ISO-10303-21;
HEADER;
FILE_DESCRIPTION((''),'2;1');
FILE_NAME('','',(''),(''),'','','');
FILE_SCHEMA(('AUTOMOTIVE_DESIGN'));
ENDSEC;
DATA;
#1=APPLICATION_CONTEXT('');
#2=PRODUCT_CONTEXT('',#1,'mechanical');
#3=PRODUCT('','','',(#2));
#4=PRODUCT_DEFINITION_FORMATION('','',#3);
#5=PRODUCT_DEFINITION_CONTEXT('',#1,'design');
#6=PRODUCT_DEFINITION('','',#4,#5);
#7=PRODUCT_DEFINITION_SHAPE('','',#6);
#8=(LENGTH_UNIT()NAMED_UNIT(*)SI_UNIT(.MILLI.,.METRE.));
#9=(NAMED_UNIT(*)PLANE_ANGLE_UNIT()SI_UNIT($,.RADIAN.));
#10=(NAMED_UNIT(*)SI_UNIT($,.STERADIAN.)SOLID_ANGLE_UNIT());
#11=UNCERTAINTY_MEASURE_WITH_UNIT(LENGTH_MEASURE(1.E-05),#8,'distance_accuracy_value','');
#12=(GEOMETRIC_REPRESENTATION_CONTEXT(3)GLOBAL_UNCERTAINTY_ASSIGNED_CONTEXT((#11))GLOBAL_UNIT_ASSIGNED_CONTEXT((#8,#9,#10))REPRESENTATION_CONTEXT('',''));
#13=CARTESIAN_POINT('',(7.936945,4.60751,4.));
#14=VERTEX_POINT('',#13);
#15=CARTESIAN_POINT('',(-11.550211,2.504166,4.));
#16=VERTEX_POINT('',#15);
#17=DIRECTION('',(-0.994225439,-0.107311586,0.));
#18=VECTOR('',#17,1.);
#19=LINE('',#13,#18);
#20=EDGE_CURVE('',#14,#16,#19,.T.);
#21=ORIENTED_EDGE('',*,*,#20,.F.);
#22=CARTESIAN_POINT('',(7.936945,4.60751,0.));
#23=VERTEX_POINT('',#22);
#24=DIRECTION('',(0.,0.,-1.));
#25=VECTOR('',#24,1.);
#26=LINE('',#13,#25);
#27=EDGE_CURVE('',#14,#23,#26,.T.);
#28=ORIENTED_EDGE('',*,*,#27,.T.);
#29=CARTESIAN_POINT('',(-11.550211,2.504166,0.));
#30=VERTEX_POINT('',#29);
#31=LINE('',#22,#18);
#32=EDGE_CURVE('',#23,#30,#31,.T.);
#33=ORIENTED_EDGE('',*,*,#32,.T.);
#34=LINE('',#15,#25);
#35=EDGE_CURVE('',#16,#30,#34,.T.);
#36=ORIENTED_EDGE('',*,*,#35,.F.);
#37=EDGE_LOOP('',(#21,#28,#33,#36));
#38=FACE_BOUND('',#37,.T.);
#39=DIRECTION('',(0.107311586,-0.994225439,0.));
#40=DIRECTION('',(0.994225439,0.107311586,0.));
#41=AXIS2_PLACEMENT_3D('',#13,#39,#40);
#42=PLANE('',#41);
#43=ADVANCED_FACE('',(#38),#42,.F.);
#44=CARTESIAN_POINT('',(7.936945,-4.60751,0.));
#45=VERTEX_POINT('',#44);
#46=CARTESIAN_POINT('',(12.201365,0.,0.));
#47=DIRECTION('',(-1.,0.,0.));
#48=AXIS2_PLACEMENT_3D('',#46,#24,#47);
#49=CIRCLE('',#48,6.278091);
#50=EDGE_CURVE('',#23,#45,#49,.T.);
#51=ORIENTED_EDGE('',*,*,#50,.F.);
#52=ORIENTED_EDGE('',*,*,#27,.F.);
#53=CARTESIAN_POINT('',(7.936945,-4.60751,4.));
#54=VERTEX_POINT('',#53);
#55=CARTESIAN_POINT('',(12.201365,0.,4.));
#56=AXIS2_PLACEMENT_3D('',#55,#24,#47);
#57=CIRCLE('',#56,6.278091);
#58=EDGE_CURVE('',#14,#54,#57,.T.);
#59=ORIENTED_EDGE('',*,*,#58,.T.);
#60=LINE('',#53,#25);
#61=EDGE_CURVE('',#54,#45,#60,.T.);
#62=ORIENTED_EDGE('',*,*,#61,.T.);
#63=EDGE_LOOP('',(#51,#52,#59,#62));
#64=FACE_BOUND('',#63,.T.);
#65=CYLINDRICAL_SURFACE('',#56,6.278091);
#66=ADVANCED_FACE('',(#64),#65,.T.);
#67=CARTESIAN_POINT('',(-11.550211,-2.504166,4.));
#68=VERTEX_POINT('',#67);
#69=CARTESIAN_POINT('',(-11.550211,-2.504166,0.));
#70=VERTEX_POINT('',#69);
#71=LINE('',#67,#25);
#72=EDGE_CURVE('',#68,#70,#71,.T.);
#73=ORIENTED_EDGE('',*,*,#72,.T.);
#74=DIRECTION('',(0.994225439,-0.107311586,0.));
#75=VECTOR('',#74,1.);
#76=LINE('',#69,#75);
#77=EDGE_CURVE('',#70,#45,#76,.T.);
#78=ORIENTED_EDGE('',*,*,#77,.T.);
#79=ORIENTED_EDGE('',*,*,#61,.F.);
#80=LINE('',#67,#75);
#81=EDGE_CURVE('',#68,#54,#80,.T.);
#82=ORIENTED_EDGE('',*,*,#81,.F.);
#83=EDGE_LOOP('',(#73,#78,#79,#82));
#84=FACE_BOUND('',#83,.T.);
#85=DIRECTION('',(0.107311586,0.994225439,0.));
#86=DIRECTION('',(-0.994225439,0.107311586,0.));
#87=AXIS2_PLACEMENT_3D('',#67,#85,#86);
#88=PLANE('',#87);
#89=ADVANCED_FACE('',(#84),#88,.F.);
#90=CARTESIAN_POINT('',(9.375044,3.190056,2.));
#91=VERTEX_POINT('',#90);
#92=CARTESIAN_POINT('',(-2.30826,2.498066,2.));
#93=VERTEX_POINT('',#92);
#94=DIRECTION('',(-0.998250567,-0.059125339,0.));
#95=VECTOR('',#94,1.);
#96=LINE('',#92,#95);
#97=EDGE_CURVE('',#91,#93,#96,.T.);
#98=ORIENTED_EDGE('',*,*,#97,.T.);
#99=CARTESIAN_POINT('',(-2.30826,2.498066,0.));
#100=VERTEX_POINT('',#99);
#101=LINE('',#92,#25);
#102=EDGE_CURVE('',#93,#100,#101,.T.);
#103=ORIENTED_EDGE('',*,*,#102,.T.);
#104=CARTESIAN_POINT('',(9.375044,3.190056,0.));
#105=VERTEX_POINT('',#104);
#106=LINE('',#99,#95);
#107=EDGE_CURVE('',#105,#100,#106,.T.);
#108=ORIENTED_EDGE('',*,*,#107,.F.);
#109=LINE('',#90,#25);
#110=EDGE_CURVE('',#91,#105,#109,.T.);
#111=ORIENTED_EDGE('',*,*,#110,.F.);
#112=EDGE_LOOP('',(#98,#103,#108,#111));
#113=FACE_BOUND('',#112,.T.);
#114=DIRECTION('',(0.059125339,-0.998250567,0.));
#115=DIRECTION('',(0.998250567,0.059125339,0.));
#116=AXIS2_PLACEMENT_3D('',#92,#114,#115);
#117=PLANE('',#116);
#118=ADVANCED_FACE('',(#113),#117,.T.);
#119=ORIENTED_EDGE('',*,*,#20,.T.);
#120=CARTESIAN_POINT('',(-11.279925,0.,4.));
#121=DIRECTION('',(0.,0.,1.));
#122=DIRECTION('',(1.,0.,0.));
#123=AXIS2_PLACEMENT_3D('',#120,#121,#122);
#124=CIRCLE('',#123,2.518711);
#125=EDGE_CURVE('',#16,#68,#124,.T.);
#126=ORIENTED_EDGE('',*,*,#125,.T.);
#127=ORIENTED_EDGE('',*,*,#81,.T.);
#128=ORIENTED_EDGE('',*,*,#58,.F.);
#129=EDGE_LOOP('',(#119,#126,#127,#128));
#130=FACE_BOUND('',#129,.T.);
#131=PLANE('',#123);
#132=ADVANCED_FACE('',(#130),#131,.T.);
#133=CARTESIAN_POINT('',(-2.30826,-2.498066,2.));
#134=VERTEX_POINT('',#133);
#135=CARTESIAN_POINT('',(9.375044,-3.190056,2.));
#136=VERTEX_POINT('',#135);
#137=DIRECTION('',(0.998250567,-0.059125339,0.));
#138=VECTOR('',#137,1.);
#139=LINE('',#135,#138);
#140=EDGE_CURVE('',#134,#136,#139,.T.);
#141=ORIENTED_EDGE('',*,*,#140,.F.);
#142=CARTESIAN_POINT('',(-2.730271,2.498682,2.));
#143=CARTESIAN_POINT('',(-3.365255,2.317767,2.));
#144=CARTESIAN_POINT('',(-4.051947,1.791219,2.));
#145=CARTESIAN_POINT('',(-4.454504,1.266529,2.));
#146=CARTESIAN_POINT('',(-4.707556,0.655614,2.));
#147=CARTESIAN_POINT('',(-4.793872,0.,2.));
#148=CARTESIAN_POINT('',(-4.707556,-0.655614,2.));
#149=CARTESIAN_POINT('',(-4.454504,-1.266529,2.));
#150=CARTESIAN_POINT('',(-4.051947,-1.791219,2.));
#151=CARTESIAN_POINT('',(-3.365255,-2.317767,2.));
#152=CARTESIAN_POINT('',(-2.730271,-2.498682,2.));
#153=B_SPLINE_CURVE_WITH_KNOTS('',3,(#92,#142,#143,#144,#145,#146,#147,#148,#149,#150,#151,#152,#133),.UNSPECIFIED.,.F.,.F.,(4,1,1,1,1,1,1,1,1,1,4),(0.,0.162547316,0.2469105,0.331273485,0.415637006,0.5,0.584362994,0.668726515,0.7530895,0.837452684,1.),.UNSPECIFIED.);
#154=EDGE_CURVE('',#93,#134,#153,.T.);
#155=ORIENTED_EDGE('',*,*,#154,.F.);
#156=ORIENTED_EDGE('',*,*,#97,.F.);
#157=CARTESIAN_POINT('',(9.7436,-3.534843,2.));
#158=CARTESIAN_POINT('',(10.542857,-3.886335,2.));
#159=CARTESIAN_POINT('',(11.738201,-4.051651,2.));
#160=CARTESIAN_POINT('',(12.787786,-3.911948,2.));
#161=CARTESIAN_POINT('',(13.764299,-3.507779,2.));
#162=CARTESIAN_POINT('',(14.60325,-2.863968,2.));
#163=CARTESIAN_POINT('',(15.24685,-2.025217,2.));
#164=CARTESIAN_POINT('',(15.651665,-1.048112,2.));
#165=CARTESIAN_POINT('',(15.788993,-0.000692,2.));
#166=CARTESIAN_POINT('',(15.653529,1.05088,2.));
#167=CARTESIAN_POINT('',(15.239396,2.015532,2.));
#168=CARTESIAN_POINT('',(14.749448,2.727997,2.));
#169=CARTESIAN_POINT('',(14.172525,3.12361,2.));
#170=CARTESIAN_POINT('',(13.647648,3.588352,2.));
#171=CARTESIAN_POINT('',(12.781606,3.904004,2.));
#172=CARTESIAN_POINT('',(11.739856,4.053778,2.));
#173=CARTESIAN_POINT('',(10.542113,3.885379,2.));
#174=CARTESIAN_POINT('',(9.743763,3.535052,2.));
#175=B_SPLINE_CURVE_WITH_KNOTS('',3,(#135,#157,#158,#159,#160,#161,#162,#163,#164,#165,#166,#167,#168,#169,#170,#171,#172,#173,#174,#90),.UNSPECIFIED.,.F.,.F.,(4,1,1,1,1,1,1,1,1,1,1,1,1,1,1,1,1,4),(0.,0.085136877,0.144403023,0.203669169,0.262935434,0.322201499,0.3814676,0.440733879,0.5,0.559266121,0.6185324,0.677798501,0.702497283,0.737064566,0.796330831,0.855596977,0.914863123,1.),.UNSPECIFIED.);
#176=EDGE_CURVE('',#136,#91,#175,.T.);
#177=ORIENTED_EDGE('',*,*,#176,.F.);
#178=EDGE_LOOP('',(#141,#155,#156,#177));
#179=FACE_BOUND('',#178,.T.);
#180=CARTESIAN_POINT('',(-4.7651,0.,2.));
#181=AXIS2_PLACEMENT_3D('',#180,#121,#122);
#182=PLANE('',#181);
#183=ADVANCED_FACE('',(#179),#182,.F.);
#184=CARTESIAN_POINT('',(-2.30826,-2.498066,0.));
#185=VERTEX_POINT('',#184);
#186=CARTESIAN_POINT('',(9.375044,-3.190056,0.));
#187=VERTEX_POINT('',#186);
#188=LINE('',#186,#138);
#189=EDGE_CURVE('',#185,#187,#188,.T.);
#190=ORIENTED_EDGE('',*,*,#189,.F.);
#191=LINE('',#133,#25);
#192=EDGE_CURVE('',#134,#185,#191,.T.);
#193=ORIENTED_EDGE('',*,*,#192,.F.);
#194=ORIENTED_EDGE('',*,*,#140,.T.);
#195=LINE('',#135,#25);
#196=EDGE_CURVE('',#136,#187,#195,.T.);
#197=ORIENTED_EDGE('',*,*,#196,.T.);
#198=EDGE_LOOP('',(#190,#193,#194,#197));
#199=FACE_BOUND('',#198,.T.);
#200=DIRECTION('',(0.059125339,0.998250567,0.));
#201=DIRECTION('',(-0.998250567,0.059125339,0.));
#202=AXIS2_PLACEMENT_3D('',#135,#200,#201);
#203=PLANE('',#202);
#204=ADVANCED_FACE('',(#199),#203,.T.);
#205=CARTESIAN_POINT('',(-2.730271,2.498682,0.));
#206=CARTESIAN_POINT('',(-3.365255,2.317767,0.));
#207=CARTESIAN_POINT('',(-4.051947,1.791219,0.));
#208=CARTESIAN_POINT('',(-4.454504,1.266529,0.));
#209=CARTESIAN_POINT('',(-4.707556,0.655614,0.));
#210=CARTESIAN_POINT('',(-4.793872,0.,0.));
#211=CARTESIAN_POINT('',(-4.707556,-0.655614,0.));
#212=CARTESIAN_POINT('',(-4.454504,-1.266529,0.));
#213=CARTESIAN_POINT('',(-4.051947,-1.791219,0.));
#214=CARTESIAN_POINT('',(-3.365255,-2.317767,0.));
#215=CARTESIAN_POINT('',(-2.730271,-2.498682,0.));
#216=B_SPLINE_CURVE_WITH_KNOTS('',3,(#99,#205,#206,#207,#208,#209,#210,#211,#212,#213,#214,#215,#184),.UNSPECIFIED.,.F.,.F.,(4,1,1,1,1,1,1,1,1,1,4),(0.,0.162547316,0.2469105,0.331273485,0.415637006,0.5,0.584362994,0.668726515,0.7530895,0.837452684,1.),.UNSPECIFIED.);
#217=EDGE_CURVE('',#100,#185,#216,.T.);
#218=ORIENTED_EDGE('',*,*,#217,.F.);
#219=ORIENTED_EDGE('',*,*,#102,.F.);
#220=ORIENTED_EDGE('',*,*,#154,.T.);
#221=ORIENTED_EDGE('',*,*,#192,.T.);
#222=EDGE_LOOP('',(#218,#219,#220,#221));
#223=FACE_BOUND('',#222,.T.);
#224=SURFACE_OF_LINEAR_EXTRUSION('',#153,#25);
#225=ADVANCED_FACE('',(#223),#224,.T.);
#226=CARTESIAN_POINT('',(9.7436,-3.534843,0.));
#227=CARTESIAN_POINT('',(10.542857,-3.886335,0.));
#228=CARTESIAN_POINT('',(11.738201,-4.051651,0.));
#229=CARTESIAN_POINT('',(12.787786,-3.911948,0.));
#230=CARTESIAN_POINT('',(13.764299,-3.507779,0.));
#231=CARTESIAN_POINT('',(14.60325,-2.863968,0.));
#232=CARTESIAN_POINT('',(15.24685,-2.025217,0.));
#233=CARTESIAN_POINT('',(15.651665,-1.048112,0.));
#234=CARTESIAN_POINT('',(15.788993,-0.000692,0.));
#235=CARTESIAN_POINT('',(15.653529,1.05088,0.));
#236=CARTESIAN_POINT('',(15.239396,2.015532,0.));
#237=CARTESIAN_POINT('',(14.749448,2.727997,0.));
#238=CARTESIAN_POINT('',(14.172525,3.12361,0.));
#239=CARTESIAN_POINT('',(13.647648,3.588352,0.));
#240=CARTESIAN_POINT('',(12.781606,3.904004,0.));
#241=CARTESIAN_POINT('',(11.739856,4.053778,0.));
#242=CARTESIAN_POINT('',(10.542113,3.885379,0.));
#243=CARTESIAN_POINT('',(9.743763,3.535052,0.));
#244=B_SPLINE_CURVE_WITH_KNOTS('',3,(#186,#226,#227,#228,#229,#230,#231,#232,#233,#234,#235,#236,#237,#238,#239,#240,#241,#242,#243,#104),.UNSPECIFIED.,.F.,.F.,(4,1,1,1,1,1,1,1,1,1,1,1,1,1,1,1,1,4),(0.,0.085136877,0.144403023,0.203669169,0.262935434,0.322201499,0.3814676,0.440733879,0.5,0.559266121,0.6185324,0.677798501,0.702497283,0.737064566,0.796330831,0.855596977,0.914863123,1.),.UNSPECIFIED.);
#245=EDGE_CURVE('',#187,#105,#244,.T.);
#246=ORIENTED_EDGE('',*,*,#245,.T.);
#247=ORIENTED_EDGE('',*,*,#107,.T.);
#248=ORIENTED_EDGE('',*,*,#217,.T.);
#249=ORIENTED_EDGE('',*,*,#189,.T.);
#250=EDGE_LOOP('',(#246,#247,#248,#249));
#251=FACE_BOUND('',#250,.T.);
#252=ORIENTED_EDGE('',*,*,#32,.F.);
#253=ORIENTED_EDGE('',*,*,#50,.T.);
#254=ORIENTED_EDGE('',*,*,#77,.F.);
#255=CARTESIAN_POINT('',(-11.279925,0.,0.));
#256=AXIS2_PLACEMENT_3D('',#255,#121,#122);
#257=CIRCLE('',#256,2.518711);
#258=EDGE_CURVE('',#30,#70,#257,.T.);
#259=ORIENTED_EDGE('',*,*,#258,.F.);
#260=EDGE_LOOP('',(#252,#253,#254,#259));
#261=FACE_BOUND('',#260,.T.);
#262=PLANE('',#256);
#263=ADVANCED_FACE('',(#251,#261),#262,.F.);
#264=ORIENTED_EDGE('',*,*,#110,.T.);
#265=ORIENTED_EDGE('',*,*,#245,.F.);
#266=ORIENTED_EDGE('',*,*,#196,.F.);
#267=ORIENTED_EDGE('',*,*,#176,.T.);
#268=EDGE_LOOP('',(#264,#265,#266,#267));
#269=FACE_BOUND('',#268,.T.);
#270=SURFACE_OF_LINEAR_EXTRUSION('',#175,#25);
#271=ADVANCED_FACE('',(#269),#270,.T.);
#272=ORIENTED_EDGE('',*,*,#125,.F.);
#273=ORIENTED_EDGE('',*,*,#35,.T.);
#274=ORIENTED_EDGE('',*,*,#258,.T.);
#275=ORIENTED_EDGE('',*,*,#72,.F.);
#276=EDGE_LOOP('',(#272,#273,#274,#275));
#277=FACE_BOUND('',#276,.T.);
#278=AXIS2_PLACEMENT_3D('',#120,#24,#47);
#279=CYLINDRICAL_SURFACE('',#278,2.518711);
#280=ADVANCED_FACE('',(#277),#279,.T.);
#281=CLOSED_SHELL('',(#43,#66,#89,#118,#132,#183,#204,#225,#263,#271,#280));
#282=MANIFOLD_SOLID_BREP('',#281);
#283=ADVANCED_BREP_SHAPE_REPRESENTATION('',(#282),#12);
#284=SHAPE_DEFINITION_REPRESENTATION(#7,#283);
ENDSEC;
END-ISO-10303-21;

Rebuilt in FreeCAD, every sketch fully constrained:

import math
import FreeCAD as App
import Part
import Sketcher
Q = App.Units.Quantity

doc = App.newDocument("Part")
body = doc.addObject("PartDesign::Body", "Body")

sketch1 = body.newObject("Sketcher::SketchObject", "Sketch")
sketch1.AttachmentSupport = (doc.getObject("XY_Plane"), [""])
sketch1.MapMode = "FlatFace"
sketch1.addGeometry(Part.LineSegment(App.Vector(7.936945, 4.60751, 0), App.Vector(-11.550211, 2.504166, 0)), False)
sketch1.addGeometry(Part.ArcOfCircle(Part.Circle(App.Vector(-11.279925, 0, 0), App.Vector(0, 0, 1), 2.518711), math.radians(96.160363), math.radians(263.839637)), False)
sketch1.addGeometry(Part.LineSegment(App.Vector(-11.550211, -2.504166, 0), App.Vector(7.936945, -4.60751, 0)), False)
sketch1.addGeometry(Part.ArcOfCircle(Part.Circle(App.Vector(12.201365, 0, 0), App.Vector(0, 0, 1), 6.278091), math.radians(-132.785393), math.radians(132.785393)), False)
sketch1.addConstraint(Sketcher.Constraint("Tangent", 0, 2, 1, 1))
sketch1.addConstraint(Sketcher.Constraint("Tangent", 1, 2, 2, 1))
sketch1.addConstraint(Sketcher.Constraint("Coincident", 2, 2, 3, 1))
sketch1.addConstraint(Sketcher.Constraint("Coincident", 3, 2, 0, 1))
sketch1.addConstraint(Sketcher.Constraint("Symmetric", 0, 2, 1, 2, -1))
sketch1.addConstraint(Sketcher.Constraint("PointOnObject", 3, 3, -1))
sketch1.addConstraint(Sketcher.Constraint("Radius", 1, Q("2.518711 mm")))
sketch1.addConstraint(Sketcher.Constraint("Radius", 3, Q("6.278091 mm")))
sketch1.addConstraint(Sketcher.Constraint("Distance", 0, Q("19.60034 mm")))
sketch1.addConstraint(Sketcher.Constraint("DistanceX", 0, 2, -1, 1, Q("11.550211 mm")))
sketch1.addConstraint(Sketcher.Constraint("DistanceY", 2, 2, -1, 1, Q("4.60751 mm")))
pad1 = body.newObject("PartDesign::Pad", "Pad")
pad1.Profile = sketch1
pad1.Length = 4

sketch2 = body.newObject("Sketcher::SketchObject", "Sketch001")
sketch2.AttachmentSupport = (doc.getObject("XY_Plane"), [""])
sketch2.MapMode = "FlatFace"
sketch2.addGeometry(Part.LineSegment(App.Vector(9.375044, 3.190056, 0), App.Vector(-2.30826, 2.498066, 0)), False)
sketch2.addGeometry(Part.BSplineCurve([App.Vector(-2.30826, -2.498066, 0), App.Vector(-2.730271, -2.498682, 0), App.Vector(-3.365255, -2.317767, 0), App.Vector(-4.051947, -1.791219, 0), App.Vector(-4.454504, -1.266529, 0), App.Vector(-4.707556, -0.655614, 0), App.Vector(-4.793872, 0, 0), App.Vector(-4.707556, 0.655614, 0), App.Vector(-4.454504, 1.266529, 0), App.Vector(-4.051947, 1.791219, 0), App.Vector(-3.365255, 2.317767, 0), App.Vector(-2.730271, 2.498682, 0), App.Vector(-2.30826, 2.498066, 0)], [4, 1, 1, 1, 1, 1, 1, 1, 1, 1, 4], [0, 0.162547316, 0.2469105, 0.331273485, 0.415637006, 0.5, 0.584362994, 0.668726515, 0.7530895, 0.837452684, 1], False, 3, [1, 1, 1, 1, 1, 1, 1, 1, 1, 1, 1, 1, 1], False), False)
sketch2.addGeometry(Part.LineSegment(App.Vector(-2.30826, -2.498066, 0), App.Vector(9.375044, -3.190056, 0)), False)
sketch2.addGeometry(Part.BSplineCurve([App.Vector(9.375044, 3.190056, 0), App.Vector(9.743763, 3.535052, 0), App.Vector(10.542113, 3.885379, 0), App.Vector(11.739856, 4.053778, 0), App.Vector(12.781606, 3.904004, 0), App.Vector(13.647648, 3.588352, 0), App.Vector(14.172525, 3.12361, 0), App.Vector(14.749448, 2.727997, 0), App.Vector(15.239396, 2.015532, 0), App.Vector(15.653529, 1.05088, 0), App.Vector(15.788993, -0.000692, 0), App.Vector(15.651665, -1.048112, 0), App.Vector(15.24685, -2.025217, 0), App.Vector(14.60325, -2.863968, 0), App.Vector(13.764299, -3.507779, 0), App.Vector(12.787786, -3.911948, 0), App.Vector(11.738201, -4.051651, 0), App.Vector(10.542857, -3.886335, 0), App.Vector(9.7436, -3.534843, 0), App.Vector(9.375044, -3.190056, 0)], [4, 1, 1, 1, 1, 1, 1, 1, 1, 1, 1, 1, 1, 1, 1, 1, 1, 4], [0, 0.085136877, 0.144403023, 0.203669169, 0.262935434, 0.297502717, 0.322201499, 0.3814676, 0.440733879, 0.5, 0.559266121, 0.6185324, 0.677798501, 0.737064566, 0.796330831, 0.855596977, 0.914863123, 1], False, 3, [1, 1, 1, 1, 1, 1, 1, 1, 1, 1, 1, 1, 1, 1, 1, 1, 1, 1, 1, 1], False), False)
sketch2.addConstraint(Sketcher.Constraint("Block", 1))
sketch2.addConstraint(Sketcher.Constraint("Block", 3))
sketch2.addConstraint(Sketcher.Constraint("Coincident", 0, 2, 1, 2))
sketch2.addConstraint(Sketcher.Constraint("Coincident", 1, 1, 2, 1))
sketch2.addConstraint(Sketcher.Constraint("Coincident", 2, 2, 3, 2))
sketch2.addConstraint(Sketcher.Constraint("Coincident", 3, 1, 0, 1))
pocket1 = body.newObject("PartDesign::Pocket", "Pocket")
pocket1.Profile = sketch2
pocket1.Length = 2
pocket1.Reversed = True

doc.recompute()
